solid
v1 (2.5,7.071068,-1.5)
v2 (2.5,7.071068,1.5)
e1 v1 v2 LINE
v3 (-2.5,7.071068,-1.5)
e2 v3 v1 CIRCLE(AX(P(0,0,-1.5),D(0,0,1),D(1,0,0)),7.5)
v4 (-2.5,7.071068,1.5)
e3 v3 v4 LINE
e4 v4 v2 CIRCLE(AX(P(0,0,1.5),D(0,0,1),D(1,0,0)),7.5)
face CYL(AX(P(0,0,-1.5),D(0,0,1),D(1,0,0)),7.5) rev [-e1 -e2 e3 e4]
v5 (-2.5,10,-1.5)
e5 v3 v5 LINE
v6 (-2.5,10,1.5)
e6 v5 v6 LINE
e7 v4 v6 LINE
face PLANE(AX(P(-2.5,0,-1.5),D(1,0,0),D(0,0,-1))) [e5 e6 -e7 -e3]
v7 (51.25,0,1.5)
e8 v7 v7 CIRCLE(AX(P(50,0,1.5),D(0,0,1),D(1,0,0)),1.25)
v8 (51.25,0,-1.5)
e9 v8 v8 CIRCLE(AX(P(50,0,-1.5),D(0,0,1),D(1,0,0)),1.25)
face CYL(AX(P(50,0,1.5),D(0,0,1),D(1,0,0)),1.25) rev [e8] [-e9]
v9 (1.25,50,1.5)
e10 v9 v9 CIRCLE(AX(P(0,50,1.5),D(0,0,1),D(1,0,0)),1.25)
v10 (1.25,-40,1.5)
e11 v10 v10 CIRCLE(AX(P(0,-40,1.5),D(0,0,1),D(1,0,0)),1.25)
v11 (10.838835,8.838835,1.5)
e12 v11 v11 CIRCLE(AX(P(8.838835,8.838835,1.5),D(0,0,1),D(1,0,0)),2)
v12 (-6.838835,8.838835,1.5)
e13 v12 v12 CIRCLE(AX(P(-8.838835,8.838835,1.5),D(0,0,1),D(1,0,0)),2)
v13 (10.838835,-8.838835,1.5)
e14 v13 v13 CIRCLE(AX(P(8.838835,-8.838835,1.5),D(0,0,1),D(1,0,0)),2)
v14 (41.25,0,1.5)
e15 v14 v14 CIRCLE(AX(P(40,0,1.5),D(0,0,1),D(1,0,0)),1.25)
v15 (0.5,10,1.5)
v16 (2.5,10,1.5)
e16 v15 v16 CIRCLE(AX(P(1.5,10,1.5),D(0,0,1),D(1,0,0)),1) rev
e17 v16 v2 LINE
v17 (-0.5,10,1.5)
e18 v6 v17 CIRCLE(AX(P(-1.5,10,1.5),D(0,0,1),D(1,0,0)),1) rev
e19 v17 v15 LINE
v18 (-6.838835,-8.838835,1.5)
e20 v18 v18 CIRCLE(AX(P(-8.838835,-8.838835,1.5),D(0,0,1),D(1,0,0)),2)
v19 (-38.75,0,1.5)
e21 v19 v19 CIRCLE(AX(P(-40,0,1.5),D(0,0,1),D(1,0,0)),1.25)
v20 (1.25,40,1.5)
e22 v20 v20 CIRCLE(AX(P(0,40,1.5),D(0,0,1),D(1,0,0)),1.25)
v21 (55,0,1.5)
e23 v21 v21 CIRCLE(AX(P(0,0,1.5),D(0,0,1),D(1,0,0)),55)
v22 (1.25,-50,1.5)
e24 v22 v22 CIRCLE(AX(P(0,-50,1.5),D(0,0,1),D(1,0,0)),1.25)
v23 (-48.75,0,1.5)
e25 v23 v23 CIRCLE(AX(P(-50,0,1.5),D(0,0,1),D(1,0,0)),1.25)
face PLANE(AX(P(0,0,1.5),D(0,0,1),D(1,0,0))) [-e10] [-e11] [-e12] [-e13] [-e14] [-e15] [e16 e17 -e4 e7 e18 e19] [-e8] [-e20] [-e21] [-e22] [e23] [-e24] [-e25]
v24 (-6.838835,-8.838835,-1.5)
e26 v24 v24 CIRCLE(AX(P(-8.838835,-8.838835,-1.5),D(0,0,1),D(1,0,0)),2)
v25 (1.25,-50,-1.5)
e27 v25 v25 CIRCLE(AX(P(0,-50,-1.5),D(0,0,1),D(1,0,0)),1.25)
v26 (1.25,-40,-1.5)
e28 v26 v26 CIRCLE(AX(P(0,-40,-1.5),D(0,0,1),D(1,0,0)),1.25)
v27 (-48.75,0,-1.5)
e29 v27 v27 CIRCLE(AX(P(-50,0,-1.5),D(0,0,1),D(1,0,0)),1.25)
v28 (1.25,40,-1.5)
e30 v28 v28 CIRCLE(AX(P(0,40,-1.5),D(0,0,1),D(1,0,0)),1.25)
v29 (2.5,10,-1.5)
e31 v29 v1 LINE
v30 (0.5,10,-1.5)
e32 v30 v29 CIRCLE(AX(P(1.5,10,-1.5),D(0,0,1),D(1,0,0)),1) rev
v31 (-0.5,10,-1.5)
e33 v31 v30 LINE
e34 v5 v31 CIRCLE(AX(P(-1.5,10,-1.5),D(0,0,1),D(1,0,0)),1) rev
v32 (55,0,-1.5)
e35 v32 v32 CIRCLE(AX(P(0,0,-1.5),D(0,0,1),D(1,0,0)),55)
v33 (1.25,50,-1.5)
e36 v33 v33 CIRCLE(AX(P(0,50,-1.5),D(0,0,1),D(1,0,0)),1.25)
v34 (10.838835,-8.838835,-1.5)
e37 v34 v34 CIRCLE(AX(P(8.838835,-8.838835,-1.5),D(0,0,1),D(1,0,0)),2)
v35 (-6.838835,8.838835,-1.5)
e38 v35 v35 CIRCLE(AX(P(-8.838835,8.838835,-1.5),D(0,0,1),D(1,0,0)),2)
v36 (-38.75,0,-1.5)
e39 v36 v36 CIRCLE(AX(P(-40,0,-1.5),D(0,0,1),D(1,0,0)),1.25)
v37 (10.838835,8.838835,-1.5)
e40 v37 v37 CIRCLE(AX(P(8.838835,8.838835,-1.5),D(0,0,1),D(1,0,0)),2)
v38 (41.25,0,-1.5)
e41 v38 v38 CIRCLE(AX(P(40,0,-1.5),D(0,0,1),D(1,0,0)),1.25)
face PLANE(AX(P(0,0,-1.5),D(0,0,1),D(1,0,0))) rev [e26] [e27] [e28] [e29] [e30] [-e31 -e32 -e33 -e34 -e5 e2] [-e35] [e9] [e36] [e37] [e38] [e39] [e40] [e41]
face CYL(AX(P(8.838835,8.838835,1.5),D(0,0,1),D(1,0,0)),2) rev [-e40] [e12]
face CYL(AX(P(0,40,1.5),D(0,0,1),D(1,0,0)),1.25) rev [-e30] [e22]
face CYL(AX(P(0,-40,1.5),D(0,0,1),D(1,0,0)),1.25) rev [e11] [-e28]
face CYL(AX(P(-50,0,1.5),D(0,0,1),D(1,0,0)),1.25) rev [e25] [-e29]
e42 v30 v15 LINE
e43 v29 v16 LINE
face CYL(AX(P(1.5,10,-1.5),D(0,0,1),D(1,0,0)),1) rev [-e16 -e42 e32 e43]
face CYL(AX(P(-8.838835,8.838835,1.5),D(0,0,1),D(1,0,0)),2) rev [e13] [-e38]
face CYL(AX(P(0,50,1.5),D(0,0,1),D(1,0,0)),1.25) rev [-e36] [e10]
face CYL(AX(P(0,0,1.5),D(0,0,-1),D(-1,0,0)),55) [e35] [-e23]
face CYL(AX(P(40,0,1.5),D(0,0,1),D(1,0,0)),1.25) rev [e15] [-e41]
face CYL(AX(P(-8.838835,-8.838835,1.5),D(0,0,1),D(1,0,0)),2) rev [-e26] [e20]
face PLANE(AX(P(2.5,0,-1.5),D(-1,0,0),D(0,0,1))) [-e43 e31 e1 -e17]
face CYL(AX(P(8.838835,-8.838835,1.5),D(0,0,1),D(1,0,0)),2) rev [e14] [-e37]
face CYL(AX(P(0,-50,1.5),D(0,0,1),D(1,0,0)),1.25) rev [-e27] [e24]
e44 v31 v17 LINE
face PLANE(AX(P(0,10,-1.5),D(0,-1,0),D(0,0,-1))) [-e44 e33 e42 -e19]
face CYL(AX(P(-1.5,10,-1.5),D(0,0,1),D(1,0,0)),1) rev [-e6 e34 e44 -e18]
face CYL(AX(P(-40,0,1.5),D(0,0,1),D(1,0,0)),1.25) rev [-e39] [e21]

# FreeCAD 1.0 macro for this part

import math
import FreeCAD as App
import Part
import Sketcher

V = App.Vector
Q = App.Units.Quantity

doc = App.newDocument("Part")
body = doc.addObject("PartDesign::Body", "Body")

sketch1 = body.newObject("Sketcher::SketchObject", "Sketch")
sketch1.AttachmentSupport = (doc.getObject("XY_Plane"), [""])
sketch1.MapMode = "FlatFace"
sketch1.addGeometry(Part.Circle(V(0, 0, 0), V(0, 0, 1), 55), False)
sketch1.addConstraint(Sketcher.Constraint("Coincident", 0, 3, -1, 1))
sketch1.addConstraint(Sketcher.Constraint("Diameter", 0, Q("110 mm")))
pad1 = body.newObject("PartDesign::Pad", "Pad")
pad1.Profile = sketch1
pad1.Length = 3
pad1.Midplane = True

sketch2 = body.newObject("Sketcher::SketchObject", "Sketch001")
sketch2.AttachmentSupport = (doc.getObject("XY_Plane"), [""])
sketch2.MapMode = "FlatFace"
sketch2.addGeometry(Part.ArcOfCircle(Part.Circle(V(-1.5, 10, 0), V(0, 0, 1), 1), math.radians(0), math.radians(180)), False)
sketch2.addGeometry(Part.LineSegment(V(-2.5, 10, 0), V(-2.5, 7.071068, 0)), False)
sketch2.addGeometry(Part.ArcOfCircle(Part.Circle(V(0, 0, 0), V(0, 0, 1), 7.5), math.radians(109.471221), math.radians(430.528779)), False)
sketch2.addGeometry(Part.LineSegment(V(2.5, 7.071068, 0), V(2.5, 10, 0)), False)
sketch2.addGeometry(Part.ArcOfCircle(Part.Circle(V(1.5, 10, 0), V(0, 0, 1), 1), math.radians(0), math.radians(180)), False)
sketch2.addGeometry(Part.LineSegment(V(0.5, 10, 0), V(-0.5, 10, 0)), False)
sketch2.addConstraint(Sketcher.Constraint("Tangent", 0, 2, 1, 1))
sketch2.addConstraint(Sketcher.Constraint("Coincident", 1, 2, 2, 1))
sketch2.addConstraint(Sketcher.Constraint("Coincident", 2, 2, 3, 1))
sketch2.addConstraint(Sketcher.Constraint("Tangent", 3, 2, 4, 1))
sketch2.addConstraint(Sketcher.Constraint("Coincident", 4, 2, 5, 1))
sketch2.addConstraint(Sketcher.Constraint("Coincident", 5, 2, 0, 1))
sketch2.addConstraint(Sketcher.Constraint("Vertical", 1))
sketch2.addConstraint(Sketcher.Constraint("Vertical", 3))
sketch2.addConstraint(Sketcher.Constraint("Horizontal", 5))
sketch2.addConstraint(Sketcher.Constraint("Coincident", 2, 3, -1, 1))
sketch2.addConstraint(Sketcher.Constraint("Equal", 0, 4))
sketch2.addConstraint(Sketcher.Constraint("Symmetric", 0, 3, 4, 3, -2))
sketch2.addConstraint(Sketcher.Constraint("Horizontal", 3, 2, 4, 2))
sketch2.addConstraint(Sketcher.Constraint("Radius", 0, Q("1 mm")))
sketch2.addConstraint(Sketcher.Constraint("Radius", 2, Q("7.5 mm")))
sketch2.addConstraint(Sketcher.Constraint("DistanceX", 5, 2, 5, 1, Q("1 mm")))
sketch2.addConstraint(Sketcher.Constraint("DistanceY", -1, 1, 0, 3, Q("10 mm")))
pocket1 = body.newObject("PartDesign::Pocket", "Pocket")
pocket1.Profile = sketch2
pocket1.Type = "ThroughAll"
pocket1.Midplane = True

sketch3 = body.newObject("Sketcher::SketchObject", "Sketch002")
sketch3.AttachmentSupport = (doc.getObject("XY_Plane"), [""])
sketch3.MapMode = "FlatFace"
sketch3.AttachmentOffset = App.Placement(V(0, 0, 1.5), App.Rotation())
sketch3.addGeometry(Part.Circle(V(0, 50, 0), V(0, 0, 1), 1.25), False)
sketch3.addGeometry(Part.Circle(V(0, 40, 0), V(0, 0, 1), 1.25), False)
sketch3.addGeometry(Part.Circle(V(-50, 0, 0), V(0, 0, 1), 1.25), False)
sketch3.addGeometry(Part.Circle(V(-40, 0, 0), V(0, 0, 1), 1.25), False)
sketch3.addGeometry(Part.Circle(V(0, -50, 0), V(0, 0, 1), 1.25), False)
sketch3.addGeometry(Part.Circle(V(0, -40, 0), V(0, 0, 1), 1.25), False)
sketch3.addGeometry(Part.Circle(V(50, 0, 0), V(0, 0, 1), 1.25), False)
sketch3.addGeometry(Part.Circle(V(40, 0, 0), V(0, 0, 1), 1.25), False)
sketch3.addConstraint(Sketcher.Constraint("Equal", 0, 1))
sketch3.addConstraint(Sketcher.Constraint("Equal", 1, 2))
sketch3.addConstraint(Sketcher.Constraint("Equal", 2, 3))
sketch3.addConstraint(Sketcher.Constraint("Equal", 3, 4))
sketch3.addConstraint(Sketcher.Constraint("Equal", 4, 5))
sketch3.addConstraint(Sketcher.Constraint("Equal", 5, 6))
sketch3.addConstraint(Sketcher.Constraint("Equal", 6, 7))
sketch3.addConstraint(Sketcher.Constraint("Symmetric", 0, 3, 4, 3, -1, 1))
sketch3.addConstraint(Sketcher.Constraint("Symmetric", 1, 3, 5, 3, -1, 1))
sketch3.addConstraint(Sketcher.Constraint("Symmetric", 2, 3, 6, 3, -1, 1))
sketch3.addConstraint(Sketcher.Constraint("Symmetric", 3, 3, 7, 3, -1, 1))
sketch3.addConstraint(Sketcher.Constraint("PointOnObject", 0, 3, -2))
sketch3.addConstraint(Sketcher.Constraint("PointOnObject", 1, 3, -2))
sketch3.addConstraint(Sketcher.Constraint("PointOnObject", 2, 3, -1))
sketch3.addConstraint(Sketcher.Constraint("PointOnObject", 3, 3, -1))
sketch3.addConstraint(Sketcher.Constraint("Diameter", 0, Q("2.5 mm")))
sketch3.addConstraint(Sketcher.Constraint("DistanceY", -1, 1, 0, 3, Q("50 mm")))
sketch3.addConstraint(Sketcher.Constraint("DistanceY", -1, 1, 1, 3, Q("40 mm")))
sketch3.addConstraint(Sketcher.Constraint("DistanceX", 2, 3, -1, 1, Q("50 mm")))
sketch3.addConstraint(Sketcher.Constraint("DistanceX", 3, 3, -1, 1, Q("40 mm")))
doc.recompute()
hole = body.newObject("PartDesign::Hole", "Hole")
hole.Profile = sketch3
hole.ThreadType = "None"
hole.Diameter = 2.5
hole.DepthType = "ThroughAll"

sketch4 = body.newObject("Sketcher::SketchObject", "Sketch003")
sketch4.AttachmentSupport = (doc.getObject("XY_Plane"), [""])
sketch4.MapMode = "FlatFace"
sketch4.AttachmentOffset = App.Placement(V(0, 0, 1.5), App.Rotation())
sketch4.addGeometry(Part.Circle(V(-8.838835, -8.838835, 0), V(0, 0, 1), 2), False)
sketch4.addGeometry(Part.Circle(V(-8.838835, 8.838835, 0), V(0, 0, 1), 2), False)
sketch4.addGeometry(Part.Circle(V(8.838835, 8.838835, 0), V(0, 0, 1), 2), False)
sketch4.addGeometry(Part.Circle(V(8.838835, -8.838835, 0), V(0, 0, 1), 2), False)
sketch4.addConstraint(Sketcher.Constraint("Equal", 0, 1))
sketch4.addConstraint(Sketcher.Constraint("Equal", 1, 2))
sketch4.addConstraint(Sketcher.Constraint("Equal", 2, 3))
sketch4.addConstraint(Sketcher.Constraint("Symmetric", 0, 3, 2, 3, -1, 1))
sketch4.addConstraint(Sketcher.Constraint("Symmetric", 1, 3, 3, 3, -1, 1))
sketch4.addConstraint(Sketcher.Constraint("Symmetric", 1, 3, 2, 3, -2))
sketch4.addConstraint(Sketcher.Constraint("Diameter", 0, Q("4 mm")))
sketch4.addConstraint(Sketcher.Constraint("DistanceY", 0, 3, 1, 3, Q("17.67767 mm")))
sketch4.addConstraint(Sketcher.Constraint("DistanceX", 1, 3, 2, 3, Q("17.67767 mm")))
doc.recompute()
hole2 = body.newObject("PartDesign::Hole", "Hole001")
hole2.Profile = sketch4
hole2.ThreadType = "None"
hole2.Diameter = 4
hole2.DepthType = "Dimension"
hole2.Depth = 5
hole2.DrillPoint = "Angled"
hole2.DrillPointAngle = 118

doc.recompute()
